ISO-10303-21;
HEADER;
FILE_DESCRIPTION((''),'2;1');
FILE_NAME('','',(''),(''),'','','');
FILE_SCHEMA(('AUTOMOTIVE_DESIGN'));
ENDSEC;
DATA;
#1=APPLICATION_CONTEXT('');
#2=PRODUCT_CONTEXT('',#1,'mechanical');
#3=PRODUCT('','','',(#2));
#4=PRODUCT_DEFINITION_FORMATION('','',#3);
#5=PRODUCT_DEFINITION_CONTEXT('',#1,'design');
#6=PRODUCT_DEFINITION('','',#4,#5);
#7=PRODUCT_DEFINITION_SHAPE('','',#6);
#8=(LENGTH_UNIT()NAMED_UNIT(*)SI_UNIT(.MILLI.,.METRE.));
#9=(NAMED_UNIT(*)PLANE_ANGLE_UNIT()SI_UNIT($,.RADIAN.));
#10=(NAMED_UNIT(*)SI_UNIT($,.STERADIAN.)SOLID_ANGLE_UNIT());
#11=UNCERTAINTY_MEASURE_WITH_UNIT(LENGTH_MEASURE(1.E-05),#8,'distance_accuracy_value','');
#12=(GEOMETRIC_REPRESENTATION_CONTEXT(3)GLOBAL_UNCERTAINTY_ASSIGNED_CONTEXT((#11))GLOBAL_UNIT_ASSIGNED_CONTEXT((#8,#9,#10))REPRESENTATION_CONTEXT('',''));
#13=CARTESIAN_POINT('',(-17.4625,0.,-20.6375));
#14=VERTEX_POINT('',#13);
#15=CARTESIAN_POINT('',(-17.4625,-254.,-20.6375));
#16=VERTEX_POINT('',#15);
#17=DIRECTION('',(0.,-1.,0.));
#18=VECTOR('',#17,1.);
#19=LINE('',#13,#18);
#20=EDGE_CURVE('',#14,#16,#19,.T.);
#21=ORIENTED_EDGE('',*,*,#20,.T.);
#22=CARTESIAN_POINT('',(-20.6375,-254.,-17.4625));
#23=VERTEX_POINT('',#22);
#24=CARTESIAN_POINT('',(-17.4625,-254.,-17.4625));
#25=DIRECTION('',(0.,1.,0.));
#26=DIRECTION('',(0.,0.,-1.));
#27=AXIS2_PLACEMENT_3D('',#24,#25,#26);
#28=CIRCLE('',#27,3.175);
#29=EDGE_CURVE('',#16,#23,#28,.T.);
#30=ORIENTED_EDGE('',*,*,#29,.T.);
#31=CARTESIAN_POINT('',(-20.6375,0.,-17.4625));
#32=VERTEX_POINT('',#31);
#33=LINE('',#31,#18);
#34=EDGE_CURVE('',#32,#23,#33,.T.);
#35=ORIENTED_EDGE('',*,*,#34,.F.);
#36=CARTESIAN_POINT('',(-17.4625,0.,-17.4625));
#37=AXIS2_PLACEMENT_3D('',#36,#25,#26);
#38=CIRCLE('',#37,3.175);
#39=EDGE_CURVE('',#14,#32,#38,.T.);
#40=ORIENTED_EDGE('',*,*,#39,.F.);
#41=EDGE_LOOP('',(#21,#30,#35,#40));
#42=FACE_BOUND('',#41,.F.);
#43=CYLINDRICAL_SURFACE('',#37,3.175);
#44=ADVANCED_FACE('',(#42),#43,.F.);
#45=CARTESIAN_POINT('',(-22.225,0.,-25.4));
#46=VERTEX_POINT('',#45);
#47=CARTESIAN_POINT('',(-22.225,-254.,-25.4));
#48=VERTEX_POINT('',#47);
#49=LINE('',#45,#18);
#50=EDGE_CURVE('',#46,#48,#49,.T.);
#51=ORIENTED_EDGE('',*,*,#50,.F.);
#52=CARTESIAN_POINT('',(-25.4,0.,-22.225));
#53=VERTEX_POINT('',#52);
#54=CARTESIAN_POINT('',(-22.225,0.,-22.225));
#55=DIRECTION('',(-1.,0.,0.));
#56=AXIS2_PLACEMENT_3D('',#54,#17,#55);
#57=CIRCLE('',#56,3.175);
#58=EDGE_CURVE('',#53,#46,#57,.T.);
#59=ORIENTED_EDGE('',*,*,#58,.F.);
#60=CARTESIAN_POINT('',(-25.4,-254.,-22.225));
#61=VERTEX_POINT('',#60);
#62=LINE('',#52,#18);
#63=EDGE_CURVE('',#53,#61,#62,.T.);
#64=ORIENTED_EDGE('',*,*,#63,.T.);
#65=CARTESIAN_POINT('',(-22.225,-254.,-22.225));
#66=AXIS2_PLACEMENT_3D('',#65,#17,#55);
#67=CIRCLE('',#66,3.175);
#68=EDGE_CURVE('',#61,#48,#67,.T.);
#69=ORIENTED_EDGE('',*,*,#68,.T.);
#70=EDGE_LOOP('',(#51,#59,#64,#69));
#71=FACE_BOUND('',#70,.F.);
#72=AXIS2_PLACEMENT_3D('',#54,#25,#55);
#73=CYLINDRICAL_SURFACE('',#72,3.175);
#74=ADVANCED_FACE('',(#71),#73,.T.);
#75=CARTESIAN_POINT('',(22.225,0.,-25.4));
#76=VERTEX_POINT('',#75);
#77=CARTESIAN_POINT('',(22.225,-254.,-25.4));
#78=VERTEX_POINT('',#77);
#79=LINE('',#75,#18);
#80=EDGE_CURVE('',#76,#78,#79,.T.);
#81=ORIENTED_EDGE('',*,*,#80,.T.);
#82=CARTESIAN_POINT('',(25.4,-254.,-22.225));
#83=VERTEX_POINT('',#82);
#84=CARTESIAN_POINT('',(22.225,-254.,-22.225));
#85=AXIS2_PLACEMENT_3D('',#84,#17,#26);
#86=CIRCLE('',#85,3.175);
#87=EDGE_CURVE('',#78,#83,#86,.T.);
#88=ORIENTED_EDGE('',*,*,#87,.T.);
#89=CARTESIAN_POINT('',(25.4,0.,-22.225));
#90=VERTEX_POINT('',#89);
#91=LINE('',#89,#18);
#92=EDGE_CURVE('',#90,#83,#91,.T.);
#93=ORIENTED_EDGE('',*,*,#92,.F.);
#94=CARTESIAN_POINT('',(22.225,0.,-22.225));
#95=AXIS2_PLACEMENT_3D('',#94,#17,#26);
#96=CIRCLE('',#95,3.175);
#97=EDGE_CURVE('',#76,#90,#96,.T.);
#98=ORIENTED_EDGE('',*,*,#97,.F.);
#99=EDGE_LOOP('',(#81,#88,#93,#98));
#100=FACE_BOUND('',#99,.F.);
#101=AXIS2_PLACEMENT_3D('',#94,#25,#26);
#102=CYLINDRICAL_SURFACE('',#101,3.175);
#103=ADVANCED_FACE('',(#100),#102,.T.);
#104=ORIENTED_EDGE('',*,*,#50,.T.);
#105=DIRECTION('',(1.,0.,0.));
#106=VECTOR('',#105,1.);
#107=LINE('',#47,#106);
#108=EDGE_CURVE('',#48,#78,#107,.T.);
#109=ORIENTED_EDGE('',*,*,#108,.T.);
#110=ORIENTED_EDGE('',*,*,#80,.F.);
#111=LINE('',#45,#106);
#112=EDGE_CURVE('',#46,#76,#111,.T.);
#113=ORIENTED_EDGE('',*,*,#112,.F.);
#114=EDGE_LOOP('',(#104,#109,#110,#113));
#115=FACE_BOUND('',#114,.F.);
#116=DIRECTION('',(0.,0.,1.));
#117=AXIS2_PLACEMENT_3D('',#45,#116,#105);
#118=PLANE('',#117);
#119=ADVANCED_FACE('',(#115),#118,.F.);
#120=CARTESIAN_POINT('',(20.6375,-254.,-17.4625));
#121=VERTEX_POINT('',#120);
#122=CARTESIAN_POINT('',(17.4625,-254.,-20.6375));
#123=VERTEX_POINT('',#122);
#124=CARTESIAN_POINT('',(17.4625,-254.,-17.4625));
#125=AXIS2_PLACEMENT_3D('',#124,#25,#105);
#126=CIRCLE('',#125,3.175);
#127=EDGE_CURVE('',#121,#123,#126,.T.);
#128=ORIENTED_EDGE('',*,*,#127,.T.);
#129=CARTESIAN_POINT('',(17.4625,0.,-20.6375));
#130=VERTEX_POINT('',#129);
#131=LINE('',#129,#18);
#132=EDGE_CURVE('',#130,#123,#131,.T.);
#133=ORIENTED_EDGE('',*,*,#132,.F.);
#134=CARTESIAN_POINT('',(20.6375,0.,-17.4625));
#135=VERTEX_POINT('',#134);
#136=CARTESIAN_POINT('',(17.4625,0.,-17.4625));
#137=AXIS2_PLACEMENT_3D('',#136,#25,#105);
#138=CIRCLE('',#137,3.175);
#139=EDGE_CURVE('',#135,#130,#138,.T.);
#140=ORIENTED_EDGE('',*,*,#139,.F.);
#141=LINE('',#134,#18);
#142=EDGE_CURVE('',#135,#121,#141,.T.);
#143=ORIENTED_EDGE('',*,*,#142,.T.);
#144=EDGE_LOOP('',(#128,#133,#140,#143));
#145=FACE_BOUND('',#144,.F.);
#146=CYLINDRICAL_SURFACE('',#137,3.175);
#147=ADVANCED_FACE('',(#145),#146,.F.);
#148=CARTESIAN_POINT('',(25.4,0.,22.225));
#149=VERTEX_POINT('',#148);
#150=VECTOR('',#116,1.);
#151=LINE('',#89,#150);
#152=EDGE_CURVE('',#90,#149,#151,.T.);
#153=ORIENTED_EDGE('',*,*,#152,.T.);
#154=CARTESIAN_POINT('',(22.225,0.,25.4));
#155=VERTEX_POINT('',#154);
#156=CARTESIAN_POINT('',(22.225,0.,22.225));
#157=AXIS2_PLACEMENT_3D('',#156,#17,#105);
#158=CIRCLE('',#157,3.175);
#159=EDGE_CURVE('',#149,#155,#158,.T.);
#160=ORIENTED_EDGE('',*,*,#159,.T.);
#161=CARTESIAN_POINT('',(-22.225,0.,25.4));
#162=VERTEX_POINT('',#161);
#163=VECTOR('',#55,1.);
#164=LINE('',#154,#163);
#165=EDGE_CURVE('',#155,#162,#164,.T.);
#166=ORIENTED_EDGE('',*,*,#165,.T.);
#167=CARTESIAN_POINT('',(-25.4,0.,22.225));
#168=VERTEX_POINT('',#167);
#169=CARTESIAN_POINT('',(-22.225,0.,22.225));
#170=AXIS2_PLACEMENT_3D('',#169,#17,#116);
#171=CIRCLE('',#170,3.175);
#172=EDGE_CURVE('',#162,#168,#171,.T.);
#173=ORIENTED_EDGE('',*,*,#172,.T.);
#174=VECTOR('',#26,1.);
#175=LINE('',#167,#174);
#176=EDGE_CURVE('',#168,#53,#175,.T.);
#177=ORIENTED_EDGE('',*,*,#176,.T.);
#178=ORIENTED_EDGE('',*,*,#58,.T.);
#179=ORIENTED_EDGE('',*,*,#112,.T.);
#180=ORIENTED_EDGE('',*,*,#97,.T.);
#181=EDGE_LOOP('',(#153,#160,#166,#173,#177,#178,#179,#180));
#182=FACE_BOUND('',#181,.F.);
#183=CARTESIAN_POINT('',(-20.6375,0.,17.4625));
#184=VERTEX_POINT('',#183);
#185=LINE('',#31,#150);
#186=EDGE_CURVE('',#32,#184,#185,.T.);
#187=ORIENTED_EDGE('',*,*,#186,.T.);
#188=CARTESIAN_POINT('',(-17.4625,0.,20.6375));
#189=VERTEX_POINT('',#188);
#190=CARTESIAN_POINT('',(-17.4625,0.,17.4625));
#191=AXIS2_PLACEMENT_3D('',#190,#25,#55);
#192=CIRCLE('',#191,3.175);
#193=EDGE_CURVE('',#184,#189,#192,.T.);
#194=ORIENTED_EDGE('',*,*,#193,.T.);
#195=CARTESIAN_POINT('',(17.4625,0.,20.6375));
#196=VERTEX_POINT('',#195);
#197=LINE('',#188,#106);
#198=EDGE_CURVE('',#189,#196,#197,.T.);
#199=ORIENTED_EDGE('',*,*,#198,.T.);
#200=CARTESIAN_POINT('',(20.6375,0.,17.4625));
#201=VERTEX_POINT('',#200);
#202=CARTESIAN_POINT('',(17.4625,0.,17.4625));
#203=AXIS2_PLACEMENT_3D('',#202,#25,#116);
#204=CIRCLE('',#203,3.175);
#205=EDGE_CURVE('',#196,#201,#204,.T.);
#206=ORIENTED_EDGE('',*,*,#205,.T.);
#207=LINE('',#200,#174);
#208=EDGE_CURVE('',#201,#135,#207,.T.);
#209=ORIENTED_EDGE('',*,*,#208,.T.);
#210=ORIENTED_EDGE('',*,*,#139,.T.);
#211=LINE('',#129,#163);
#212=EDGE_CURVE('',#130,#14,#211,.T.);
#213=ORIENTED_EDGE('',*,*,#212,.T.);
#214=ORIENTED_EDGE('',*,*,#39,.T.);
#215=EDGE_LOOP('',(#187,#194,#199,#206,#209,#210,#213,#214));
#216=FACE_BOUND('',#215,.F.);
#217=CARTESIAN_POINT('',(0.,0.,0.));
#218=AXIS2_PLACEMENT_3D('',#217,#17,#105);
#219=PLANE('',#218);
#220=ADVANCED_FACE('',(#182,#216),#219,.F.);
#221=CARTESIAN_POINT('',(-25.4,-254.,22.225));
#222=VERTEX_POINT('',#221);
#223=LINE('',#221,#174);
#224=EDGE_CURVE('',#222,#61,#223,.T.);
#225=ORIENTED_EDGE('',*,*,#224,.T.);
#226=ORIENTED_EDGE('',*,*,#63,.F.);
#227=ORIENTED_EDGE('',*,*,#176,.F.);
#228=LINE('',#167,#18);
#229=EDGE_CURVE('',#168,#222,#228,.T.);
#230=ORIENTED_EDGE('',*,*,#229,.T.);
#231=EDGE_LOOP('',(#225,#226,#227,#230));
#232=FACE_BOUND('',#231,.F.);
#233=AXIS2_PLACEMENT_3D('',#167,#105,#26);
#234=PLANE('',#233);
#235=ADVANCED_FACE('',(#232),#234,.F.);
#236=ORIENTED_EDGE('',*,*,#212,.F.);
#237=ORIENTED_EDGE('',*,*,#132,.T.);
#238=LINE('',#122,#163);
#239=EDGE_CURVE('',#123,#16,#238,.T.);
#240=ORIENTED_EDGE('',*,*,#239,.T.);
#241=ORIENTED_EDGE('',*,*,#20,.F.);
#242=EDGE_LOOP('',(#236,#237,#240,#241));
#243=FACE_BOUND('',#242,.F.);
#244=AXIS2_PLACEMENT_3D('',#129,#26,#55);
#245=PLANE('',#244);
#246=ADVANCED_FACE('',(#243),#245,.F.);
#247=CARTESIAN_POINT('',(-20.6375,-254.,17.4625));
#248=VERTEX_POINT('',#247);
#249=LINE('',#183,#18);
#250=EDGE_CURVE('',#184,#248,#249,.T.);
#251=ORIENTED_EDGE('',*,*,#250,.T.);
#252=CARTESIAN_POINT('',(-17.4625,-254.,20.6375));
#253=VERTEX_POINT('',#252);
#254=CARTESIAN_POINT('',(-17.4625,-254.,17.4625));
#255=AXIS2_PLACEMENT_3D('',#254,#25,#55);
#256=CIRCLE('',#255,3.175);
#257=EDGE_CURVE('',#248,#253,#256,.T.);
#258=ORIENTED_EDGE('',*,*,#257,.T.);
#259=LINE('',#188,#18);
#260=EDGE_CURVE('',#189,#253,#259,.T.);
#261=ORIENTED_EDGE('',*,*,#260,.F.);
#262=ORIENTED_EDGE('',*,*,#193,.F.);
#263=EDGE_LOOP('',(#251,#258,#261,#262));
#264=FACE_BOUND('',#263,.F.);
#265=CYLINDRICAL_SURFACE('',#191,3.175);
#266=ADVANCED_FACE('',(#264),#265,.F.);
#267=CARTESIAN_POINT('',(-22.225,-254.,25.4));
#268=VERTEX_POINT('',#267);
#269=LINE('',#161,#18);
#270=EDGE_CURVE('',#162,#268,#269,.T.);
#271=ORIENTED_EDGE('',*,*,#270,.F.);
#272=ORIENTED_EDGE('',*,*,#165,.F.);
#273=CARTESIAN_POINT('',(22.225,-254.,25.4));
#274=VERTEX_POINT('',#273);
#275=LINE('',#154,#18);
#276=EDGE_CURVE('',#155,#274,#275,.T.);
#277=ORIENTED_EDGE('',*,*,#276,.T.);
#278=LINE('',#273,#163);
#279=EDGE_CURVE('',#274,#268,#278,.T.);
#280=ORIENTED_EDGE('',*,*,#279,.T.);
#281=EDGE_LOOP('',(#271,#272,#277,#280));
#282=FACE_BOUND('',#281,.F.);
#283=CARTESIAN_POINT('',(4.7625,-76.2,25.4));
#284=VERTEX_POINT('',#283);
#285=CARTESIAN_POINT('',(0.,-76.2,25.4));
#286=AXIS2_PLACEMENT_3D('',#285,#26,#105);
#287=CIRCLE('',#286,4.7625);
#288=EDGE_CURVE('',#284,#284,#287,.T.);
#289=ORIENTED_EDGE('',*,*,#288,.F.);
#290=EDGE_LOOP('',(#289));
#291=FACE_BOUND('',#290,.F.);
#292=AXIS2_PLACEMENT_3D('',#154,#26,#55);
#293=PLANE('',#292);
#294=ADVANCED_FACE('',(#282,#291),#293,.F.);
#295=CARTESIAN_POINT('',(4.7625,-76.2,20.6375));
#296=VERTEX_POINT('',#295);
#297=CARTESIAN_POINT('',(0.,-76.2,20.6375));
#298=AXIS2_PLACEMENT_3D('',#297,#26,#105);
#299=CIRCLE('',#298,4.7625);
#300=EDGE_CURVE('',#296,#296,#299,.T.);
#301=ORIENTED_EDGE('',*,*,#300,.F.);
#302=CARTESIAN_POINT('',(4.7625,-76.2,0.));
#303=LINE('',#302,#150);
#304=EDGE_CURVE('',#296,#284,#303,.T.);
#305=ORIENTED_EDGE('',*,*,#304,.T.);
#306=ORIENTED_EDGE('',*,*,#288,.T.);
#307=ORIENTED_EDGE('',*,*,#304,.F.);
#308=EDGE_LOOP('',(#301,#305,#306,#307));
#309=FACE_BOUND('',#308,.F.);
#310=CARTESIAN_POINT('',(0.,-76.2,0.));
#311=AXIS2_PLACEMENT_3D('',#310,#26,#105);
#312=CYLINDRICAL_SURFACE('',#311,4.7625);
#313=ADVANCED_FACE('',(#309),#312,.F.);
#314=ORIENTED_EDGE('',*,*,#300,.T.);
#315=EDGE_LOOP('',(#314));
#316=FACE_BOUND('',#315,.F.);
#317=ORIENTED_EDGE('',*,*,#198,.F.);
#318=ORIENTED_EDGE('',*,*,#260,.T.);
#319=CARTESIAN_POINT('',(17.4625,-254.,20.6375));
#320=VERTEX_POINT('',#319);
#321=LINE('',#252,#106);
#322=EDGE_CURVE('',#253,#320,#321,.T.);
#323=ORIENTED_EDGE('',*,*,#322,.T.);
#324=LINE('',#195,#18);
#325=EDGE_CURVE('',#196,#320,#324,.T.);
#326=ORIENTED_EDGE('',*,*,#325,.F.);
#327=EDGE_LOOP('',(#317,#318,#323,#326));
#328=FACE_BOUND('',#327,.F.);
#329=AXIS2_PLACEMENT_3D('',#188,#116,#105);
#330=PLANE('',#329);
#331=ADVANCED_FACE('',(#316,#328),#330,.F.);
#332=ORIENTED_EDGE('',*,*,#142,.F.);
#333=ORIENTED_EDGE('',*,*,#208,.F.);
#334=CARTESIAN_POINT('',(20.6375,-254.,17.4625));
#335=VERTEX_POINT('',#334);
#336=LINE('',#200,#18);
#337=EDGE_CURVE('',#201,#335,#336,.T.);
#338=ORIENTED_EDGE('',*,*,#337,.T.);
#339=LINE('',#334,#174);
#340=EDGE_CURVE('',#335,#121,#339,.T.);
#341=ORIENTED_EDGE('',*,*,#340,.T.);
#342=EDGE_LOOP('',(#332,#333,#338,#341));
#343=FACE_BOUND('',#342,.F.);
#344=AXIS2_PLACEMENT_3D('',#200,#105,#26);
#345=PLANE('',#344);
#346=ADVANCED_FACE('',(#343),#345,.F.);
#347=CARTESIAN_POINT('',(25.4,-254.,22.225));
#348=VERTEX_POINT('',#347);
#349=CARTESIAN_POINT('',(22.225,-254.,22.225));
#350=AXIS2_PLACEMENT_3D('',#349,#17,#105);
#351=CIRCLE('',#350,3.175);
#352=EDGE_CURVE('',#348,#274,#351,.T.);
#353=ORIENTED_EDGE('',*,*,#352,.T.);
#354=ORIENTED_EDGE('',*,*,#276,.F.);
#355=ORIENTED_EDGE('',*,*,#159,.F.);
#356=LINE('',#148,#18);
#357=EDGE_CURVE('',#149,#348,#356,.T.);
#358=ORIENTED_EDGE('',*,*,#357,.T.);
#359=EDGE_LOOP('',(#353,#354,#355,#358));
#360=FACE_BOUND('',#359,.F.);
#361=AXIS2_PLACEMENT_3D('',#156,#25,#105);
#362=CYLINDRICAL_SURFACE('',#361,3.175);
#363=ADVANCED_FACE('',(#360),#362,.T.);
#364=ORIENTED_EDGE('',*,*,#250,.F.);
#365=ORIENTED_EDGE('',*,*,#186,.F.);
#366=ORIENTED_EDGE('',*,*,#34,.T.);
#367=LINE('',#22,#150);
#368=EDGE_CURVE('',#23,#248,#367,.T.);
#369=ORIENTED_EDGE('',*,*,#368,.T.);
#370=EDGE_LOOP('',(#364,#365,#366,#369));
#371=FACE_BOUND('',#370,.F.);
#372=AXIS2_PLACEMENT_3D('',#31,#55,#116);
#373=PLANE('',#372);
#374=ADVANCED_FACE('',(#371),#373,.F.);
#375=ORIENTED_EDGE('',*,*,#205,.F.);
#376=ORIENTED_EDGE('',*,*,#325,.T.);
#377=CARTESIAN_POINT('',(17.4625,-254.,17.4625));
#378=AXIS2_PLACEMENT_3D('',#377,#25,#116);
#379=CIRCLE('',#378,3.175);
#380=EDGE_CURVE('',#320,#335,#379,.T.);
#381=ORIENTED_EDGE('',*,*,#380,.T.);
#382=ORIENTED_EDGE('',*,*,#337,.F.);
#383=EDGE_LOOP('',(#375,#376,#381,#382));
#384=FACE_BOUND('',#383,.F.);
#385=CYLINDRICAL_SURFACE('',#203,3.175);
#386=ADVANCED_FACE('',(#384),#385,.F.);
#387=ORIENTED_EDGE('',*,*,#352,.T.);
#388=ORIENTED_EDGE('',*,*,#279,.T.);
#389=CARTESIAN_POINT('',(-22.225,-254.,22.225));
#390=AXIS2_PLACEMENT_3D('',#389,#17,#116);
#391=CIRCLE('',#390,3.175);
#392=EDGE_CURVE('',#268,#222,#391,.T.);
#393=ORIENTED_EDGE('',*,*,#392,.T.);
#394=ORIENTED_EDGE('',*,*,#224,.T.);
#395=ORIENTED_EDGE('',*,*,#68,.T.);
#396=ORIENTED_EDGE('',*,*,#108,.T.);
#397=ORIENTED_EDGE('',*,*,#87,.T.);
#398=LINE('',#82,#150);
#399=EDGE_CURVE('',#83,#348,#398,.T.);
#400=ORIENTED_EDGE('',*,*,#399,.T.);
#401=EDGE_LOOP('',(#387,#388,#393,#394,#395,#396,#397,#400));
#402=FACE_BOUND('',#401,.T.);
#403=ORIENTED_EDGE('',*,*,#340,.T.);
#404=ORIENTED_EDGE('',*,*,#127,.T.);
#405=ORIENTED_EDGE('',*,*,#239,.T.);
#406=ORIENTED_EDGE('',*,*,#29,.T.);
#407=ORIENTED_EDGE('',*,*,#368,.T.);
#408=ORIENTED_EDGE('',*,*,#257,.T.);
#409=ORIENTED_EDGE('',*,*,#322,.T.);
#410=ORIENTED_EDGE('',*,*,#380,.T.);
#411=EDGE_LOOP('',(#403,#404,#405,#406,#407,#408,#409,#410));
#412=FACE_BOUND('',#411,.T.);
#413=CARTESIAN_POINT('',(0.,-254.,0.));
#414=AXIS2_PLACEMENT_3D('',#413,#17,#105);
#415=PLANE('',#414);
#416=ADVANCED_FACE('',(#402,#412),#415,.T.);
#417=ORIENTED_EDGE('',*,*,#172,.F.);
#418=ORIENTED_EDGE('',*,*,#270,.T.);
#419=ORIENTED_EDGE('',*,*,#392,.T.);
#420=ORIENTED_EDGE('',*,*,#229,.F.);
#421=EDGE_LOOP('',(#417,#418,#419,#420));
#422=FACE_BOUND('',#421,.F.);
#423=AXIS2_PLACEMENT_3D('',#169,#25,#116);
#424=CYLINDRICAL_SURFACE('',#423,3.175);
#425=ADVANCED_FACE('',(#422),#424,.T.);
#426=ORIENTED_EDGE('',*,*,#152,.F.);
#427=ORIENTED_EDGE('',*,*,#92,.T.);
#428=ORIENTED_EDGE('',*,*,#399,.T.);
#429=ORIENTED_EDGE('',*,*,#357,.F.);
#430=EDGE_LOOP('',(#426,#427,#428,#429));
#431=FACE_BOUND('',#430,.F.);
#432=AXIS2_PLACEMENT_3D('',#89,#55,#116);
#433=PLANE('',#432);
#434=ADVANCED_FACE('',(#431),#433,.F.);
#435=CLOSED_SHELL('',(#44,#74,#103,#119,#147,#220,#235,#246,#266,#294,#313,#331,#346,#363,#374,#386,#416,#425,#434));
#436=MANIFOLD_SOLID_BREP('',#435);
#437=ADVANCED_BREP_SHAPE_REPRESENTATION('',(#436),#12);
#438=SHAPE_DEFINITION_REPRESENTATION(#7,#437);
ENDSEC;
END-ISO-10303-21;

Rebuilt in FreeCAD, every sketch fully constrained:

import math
import FreeCAD as App
import Part
import Sketcher
Q = App.Units.Quantity

doc = App.newDocument("Part")
body = doc.addObject("PartDesign::Body", "Body")

sketch1 = body.newObject("Sketcher::SketchObject", "Sketch")
sketch1.AttachmentSupport = (doc.getObject("XZ_Plane"), [""])
sketch1.MapMode = "FlatFace"
sketch1.addGeometry([
    Part.LineSegment(App.Vector(-22.2, -25.4, 0), App.Vector(22.2, -25.4, 0)),
    Part.ArcOfCircle(Part.Circle(App.Vector(22.2, -22.2, 0), App.Vector(0, 0, 1), 3.2), math.radians(-90), math.radians(0)),
    Part.LineSegment(App.Vector(25.4, -22.2, 0), App.Vector(25.4, 22.2, 0)),
    Part.ArcOfCircle(Part.Circle(App.Vector(22.2, 22.2, 0), App.Vector(0, 0, 1), 3.2), math.radians(0), math.radians(90)),
    Part.LineSegment(App.Vector(22.2, 25.4, 0), App.Vector(-22.2, 25.4, 0)),
    Part.ArcOfCircle(Part.Circle(App.Vector(-22.2, 22.2, 0), App.Vector(0, 0, 1), 3.2), math.radians(90), math.radians(180)),
    Part.LineSegment(App.Vector(-25.4, 22.2, 0), App.Vector(-25.4, -22.2, 0)),
    Part.ArcOfCircle(Part.Circle(App.Vector(-22.2, -22.2, 0), App.Vector(0, 0, 1), 3.2), math.radians(180), math.radians(270)),
    Part.LineSegment(App.Vector(20.6, 17.5, 0), App.Vector(20.6, -17.5, 0)),
    Part.ArcOfCircle(Part.Circle(App.Vector(17.5, -17.5, 0), App.Vector(0, 0, 1), 3.2), math.radians(-90), math.radians(0)),
    Part.LineSegment(App.Vector(17.5, -20.6, 0), App.Vector(-17.5, -20.6, 0)),
    Part.ArcOfCircle(Part.Circle(App.Vector(-17.5, -17.5, 0), App.Vector(0, 0, 1), 3.2), math.radians(180), math.radians(270)),
    Part.LineSegment(App.Vector(-20.6, -17.5, 0), App.Vector(-20.6, 17.5, 0)),
    Part.ArcOfCircle(Part.Circle(App.Vector(-17.5, 17.5, 0), App.Vector(0, 0, 1), 3.2), math.radians(90), math.radians(180)),
    Part.LineSegment(App.Vector(-17.5, 20.6, 0), App.Vector(17.5, 20.6, 0)),
    Part.ArcOfCircle(Part.Circle(App.Vector(17.5, 17.5, 0), App.Vector(0, 0, 1), 3.2), math.radians(0), math.radians(90)),
], False)
sketch1.addConstraint([
    Sketcher.Constraint("Tangent", 0, 2, 1, 1),
    Sketcher.Constraint("Tangent", 1, 2, 2, 1),
    Sketcher.Constraint("Tangent", 2, 2, 3, 1),
    Sketcher.Constraint("Tangent", 3, 2, 4, 1),
    Sketcher.Constraint("Tangent", 4, 2, 5, 1),
    Sketcher.Constraint("Tangent", 5, 2, 6, 1),
    Sketcher.Constraint("Tangent", 6, 2, 7, 1),
    Sketcher.Constraint("Tangent", 7, 2, 0, 1),
    Sketcher.Constraint("Tangent", 8, 2, 9, 2),
    Sketcher.Constraint("Tangent", 9, 1, 10, 1),
    Sketcher.Constraint("Tangent", 10, 2, 11, 2),
    Sketcher.Constraint("Tangent", 11, 1, 12, 1),
    Sketcher.Constraint("Tangent", 12, 2, 13, 2),
    Sketcher.Constraint("Tangent", 13, 1, 14, 1),
    Sketcher.Constraint("Tangent", 14, 2, 15, 2),
    Sketcher.Constraint("Tangent", 15, 1, 8, 1),
    Sketcher.Constraint("Horizontal", 0),
    Sketcher.Constraint("Vertical", 2),
    Sketcher.Constraint("Horizontal", 4),
    Sketcher.Constraint("Vertical", 6),
    Sketcher.Constraint("Vertical", 8),
    Sketcher.Constraint("Horizontal", 10),
    Sketcher.Constraint("Vertical", 12),
    Sketcher.Constraint("Horizontal", 14),
    Sketcher.Constraint("Equal", 1, 3),
    Sketcher.Constraint("Equal", 3, 5),
    Sketcher.Constraint("Equal", 5, 7),
    Sketcher.Constraint("Equal", 7, 9),
    Sketcher.Constraint("Equal", 9, 11),
    Sketcher.Constraint("Equal", 11, 13),
    Sketcher.Constraint("Equal", 13, 15),
    Sketcher.Constraint("Symmetric", 1, 3, 5, 3, -1, 1),
    Sketcher.Constraint("Symmetric", 9, 3, 13, 3, -1, 1),
    Sketcher.Constraint("Equal", 4, 2),
    Sketcher.Constraint("Equal", 14, 8),
    Sketcher.Constraint("DistanceY", 0, 2, -1, 1, Q("1 in")),
    Sketcher.Constraint("Radius", 1, Q("0.125 in")),
    Sketcher.Constraint("DistanceX", 10, 2, 10, 1, Q("1.375 in")),
])
pad1 = body.newObject("PartDesign::Pad", "Pad")
pad1.Profile = sketch1
pad1.Length = Q("10 in")

sketch2 = body.newObject("Sketcher::SketchObject", "Sketch001")
sketch2.AttachmentSupport = (doc.getObject("XY_Plane"), [""])
sketch2.MapMode = "FlatFace"
sketch2.addGeometry(Part.Circle(App.Vector(0, -76.2, 0), App.Vector(0, 0, 1), 4.8), False)
sketch2.addConstraint([
    Sketcher.Constraint("PointOnObject", 0, 3, -2),
    Sketcher.Constraint("Diameter", 0, Q("0.375 in")),
    Sketcher.Constraint("DistanceY", 0, 3, -1, 1, Q("3 in")),
])
pocket1 = body.newObject("PartDesign::Pocket", "Pocket")
pocket1.Profile = sketch2
pocket1.Type = "ThroughAll"
pocket1.Reversed = True

doc.recompute()
